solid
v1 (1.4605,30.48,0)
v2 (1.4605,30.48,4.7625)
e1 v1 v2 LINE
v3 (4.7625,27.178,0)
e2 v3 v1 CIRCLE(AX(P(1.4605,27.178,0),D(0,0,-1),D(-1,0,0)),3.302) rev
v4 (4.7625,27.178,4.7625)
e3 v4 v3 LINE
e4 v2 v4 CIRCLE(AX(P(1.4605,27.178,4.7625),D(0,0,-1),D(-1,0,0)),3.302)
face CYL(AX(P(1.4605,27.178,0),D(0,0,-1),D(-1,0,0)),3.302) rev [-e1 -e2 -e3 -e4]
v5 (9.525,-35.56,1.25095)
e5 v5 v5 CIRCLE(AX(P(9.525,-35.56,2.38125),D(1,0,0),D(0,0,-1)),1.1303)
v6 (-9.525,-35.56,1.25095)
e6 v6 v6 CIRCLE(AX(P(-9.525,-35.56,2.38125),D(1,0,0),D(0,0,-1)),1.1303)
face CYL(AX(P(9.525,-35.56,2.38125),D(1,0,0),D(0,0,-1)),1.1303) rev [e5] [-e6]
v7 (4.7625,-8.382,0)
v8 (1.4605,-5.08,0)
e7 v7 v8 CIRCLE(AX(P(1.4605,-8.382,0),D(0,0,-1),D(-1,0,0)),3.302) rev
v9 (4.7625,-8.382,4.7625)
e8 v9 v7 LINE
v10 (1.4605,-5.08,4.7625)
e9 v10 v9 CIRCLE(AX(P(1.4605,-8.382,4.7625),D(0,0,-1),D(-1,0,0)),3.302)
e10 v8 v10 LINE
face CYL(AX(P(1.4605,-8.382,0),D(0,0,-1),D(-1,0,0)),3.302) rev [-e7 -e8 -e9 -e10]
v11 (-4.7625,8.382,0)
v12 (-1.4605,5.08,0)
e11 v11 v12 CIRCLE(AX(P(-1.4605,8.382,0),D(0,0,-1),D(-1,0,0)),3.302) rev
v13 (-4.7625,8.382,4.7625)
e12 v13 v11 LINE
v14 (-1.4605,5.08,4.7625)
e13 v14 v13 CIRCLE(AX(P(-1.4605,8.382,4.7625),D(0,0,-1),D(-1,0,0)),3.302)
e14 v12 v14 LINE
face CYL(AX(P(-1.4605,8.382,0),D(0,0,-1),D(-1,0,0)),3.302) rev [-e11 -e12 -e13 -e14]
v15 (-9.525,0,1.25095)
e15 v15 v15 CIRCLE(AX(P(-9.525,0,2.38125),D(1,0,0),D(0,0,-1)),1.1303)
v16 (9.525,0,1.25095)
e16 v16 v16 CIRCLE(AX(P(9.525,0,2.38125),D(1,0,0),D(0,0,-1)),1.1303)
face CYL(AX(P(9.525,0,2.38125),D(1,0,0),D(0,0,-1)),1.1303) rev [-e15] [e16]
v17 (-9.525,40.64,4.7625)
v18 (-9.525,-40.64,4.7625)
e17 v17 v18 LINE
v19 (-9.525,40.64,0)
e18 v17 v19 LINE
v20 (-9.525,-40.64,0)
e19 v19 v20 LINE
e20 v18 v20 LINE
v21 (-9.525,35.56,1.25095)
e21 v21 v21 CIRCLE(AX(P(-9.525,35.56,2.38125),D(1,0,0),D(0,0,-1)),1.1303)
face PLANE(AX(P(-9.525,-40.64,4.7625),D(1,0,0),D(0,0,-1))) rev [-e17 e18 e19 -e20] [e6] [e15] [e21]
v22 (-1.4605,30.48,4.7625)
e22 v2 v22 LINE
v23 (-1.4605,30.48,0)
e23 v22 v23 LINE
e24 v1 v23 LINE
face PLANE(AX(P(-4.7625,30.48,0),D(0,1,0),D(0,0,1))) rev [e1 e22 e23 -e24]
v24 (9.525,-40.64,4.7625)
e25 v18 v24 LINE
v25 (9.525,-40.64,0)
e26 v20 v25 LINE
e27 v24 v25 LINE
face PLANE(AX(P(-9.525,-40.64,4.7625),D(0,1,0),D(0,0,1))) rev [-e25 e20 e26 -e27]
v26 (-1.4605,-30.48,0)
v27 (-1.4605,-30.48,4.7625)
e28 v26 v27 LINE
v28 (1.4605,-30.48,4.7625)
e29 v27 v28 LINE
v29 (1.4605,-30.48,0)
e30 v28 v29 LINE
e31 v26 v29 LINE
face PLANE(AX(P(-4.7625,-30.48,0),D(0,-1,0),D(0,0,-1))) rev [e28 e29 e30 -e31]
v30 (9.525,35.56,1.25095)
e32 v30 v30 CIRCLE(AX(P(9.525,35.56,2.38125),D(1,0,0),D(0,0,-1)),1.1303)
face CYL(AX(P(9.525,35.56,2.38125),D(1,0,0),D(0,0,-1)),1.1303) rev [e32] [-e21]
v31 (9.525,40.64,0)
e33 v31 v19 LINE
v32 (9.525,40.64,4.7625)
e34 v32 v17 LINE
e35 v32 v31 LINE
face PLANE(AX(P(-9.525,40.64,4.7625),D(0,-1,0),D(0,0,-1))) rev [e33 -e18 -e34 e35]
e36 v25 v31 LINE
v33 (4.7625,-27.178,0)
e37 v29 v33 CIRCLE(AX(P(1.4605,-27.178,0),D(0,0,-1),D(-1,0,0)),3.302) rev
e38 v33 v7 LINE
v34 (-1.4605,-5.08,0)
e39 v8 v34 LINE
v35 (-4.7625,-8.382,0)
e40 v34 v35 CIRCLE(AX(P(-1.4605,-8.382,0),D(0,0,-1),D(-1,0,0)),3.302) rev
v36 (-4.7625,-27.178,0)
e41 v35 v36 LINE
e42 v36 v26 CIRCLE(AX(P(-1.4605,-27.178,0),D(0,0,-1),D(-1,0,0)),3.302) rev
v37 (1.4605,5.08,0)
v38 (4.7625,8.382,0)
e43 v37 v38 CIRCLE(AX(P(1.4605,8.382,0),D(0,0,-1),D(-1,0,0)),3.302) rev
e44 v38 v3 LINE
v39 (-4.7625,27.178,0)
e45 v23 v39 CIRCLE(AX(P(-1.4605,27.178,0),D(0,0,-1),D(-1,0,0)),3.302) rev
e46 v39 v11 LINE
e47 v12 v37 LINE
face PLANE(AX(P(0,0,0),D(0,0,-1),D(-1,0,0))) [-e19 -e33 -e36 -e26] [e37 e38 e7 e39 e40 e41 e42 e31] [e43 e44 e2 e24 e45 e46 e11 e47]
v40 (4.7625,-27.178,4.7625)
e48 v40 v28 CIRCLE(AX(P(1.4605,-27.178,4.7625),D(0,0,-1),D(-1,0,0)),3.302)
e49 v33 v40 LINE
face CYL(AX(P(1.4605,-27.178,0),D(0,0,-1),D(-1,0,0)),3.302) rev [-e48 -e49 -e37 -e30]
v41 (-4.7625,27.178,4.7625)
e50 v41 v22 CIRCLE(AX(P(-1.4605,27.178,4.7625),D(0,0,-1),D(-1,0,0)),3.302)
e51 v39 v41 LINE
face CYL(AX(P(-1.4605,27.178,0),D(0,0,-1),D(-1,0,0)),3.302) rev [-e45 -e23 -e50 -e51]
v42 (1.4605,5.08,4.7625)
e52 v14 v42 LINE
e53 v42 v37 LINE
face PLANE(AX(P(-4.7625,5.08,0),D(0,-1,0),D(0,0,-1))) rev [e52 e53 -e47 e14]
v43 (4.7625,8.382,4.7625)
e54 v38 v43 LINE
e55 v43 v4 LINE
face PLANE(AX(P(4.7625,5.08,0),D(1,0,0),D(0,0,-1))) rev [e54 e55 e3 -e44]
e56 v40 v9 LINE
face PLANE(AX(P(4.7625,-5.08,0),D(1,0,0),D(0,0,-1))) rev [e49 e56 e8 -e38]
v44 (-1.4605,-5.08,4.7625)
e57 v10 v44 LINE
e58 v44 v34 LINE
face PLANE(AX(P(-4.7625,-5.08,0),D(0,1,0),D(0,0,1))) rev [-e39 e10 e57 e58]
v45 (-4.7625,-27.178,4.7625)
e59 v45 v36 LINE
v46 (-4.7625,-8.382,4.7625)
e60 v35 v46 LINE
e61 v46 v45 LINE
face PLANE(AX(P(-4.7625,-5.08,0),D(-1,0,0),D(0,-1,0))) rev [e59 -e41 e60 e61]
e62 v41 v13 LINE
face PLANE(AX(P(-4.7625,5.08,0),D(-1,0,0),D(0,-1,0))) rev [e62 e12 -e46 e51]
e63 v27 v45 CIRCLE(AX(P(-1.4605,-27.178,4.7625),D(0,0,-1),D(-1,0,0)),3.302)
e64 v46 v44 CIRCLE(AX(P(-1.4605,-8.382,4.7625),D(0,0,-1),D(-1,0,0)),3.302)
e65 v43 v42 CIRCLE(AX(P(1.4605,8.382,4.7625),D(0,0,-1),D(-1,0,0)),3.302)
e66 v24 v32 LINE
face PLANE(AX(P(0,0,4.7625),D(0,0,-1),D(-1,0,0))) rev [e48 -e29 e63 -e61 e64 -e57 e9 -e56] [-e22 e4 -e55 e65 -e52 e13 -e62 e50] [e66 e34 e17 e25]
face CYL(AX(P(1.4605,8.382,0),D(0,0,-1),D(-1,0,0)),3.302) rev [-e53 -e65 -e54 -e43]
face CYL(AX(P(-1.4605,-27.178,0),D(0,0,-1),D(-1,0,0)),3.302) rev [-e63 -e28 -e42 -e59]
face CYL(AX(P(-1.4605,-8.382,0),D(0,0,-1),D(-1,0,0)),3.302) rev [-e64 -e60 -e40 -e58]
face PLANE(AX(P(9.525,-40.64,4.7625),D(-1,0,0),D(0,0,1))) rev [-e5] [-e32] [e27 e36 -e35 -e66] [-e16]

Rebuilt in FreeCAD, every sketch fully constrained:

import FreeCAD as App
import Part
import Sketcher
Q = App.Units.Quantity


def edges_at(feature, points):
    """Names of the edges that pass closest to the given points."""
    edges = feature.Shape.Edges
    near = lambda p: min(range(len(edges)), key=lambda i: edges[i].distToShape(Part.Vertex(*p))[0])
    return sorted({f"Edge{near(p) + 1}" for p in points})


def add_polygon(sketch, points):
    """Adds a closed chain of lines whose ends are joined by coincident constraints."""
    first, n = sketch.GeometryCount, len(points)
    for a, b in zip(points, points[1:] + points[:1]):
        sketch.addGeometry(Part.LineSegment(App.Vector(*a, 0), App.Vector(*b, 0)), False)
    for i in range(n):
        sketch.addConstraint(Sketcher.Constraint("Coincident", first + i, 2, first + (i + 1) % n, 1))

doc = App.newDocument("Part")
params = doc.addObject("Spreadsheet::Sheet", "Params")
for row, (alias, value) in enumerate([
    ("sketch1_height", "3.2 in"),
    ("sketch1_width", "0.75 in"),
    ("pad1_length", "0.1875 in"),
    ("sketch2_height", "1 in"),
    ("sketch2_width", "0.375 in"),
    ("fillet_radius", "0.13 in"),
    ("sketch3_diameter", "0.089 in"),
    ("hole_diameter", "0.089 in"),
], start=1):
    params.set(f"A{row}", alias)
    params.set(f"B{row}", "=" + value)
    params.setAlias(f"B{row}", alias)

body = doc.addObject("PartDesign::Body", "Body")

# Sketch on XY plane
sketch1 = body.newObject("Sketcher::SketchObject", "Sketch")
sketch1.AttachmentSupport = (doc.getObject("XY_Plane"), [""])
sketch1.MapMode = "FlatFace"
add_polygon(sketch1, [(-10, 41), (-10, -41), (10, -41), (10, 41)])  # lines 0-3
sketch1.addConstraint([
    Sketcher.Constraint("Vertical", 0),
    Sketcher.Constraint("Horizontal", 1),
    Sketcher.Constraint("Vertical", 2),
    Sketcher.Constraint("Horizontal", 3),
    Sketcher.Constraint("Symmetric", 0, 2, 2, 2, -1, 1),
    Sketcher.Constraint("DistanceY", 0, 2, 0, 1, Q("3.2 in")),
    Sketcher.Constraint("DistanceX", 1, 1, 1, 2, Q("0.75 in")),
])
sketch1.setExpression("Constraints[9]", "Params.sketch1_height")
sketch1.setExpression("Constraints[10]", "Params.sketch1_width")
pad1 = body.newObject("PartDesign::Pad", "Pad")
pad1.Profile = sketch1
pad1.setExpression("Length", "Params.pad1_length")

# Sketch on XY plane
sketch2 = body.newObject("Sketcher::SketchObject", "Sketch001")
sketch2.AttachmentSupport = (doc.getObject("XY_Plane"), [""])
sketch2.MapMode = "FlatFace"
sketch2.AttachmentOffset = App.Placement(App.Vector(0, 0, 0.1875 * 25.4), App.Rotation())
add_polygon(sketch2, [(-5, 30), (-5, 5), (5, 5), (5, 30)])  # lines 0-3
add_polygon(sketch2, [(-5, -5), (-5, -30), (5, -30), (5, -5)])  # lines 4-7
sketch2.addConstraint([
    Sketcher.Constraint("Vertical", 0),
    Sketcher.Constraint("Horizontal", 1),
    Sketcher.Constraint("Vertical", 2),
    Sketcher.Constraint("Horizontal", 3),
    Sketcher.Constraint("Vertical", 4),
    Sketcher.Constraint("Horizontal", 5),
    Sketcher.Constraint("Vertical", 6),
    Sketcher.Constraint("Horizontal", 7),
    Sketcher.Constraint("Symmetric", 2, 2, 4, 2, -1, 1),
    Sketcher.Constraint("Symmetric", 0, 2, 6, 2, -1, 1),
    Sketcher.Constraint("Vertical", 3, 2, 4, 2),
    Sketcher.Constraint("DistanceY", 0, 2, 0, 1, Q("1 in")),
    Sketcher.Constraint("DistanceY", -1, 1, 0, 2, Q("0.2 in")),
    Sketcher.Constraint("DistanceX", 1, 1, 1, 2, Q("0.375 in")),
])
sketch2.setExpression("Constraints[19]", "Params.sketch2_height")
sketch2.setExpression("Constraints[21]", "Params.sketch2_width")
pocket1 = body.newObject("PartDesign::Pocket", "Pocket")
pocket1.Profile = sketch2
pocket1.Type = "ThroughAll"
doc.recompute()

fillet = body.newObject("PartDesign::Fillet", "Fillet")
fillet.Base = (pocket1, edges_at(pocket1, [
    (4.763, 30.48, 2.381),
    (4.763, 5.08, 2.381),
    (-4.763, 5.08, 2.381),
    (-4.763, 30.48, 2.381),
    (-4.763, -30.48, 2.381),
    (-4.763, -5.08, 2.381),
    (4.763, -5.08, 2.381),
    (4.763, -30.48, 2.381),
]))
fillet.setExpression("Radius", "Params.fillet_radius")

# Sketch on YZ plane
sketch3 = body.newObject("Sketcher::SketchObject", "Sketch002")
sketch3.AttachmentSupport = (doc.getObject("YZ_Plane"), [""])
sketch3.MapMode = "FlatFace"
sketch3.AttachmentOffset = App.Placement(App.Vector(0, 0, 0.375 * 25.4), App.Rotation())
sketch3.addGeometry([
    Part.Circle(App.Vector(35.6, 2.4, 0), App.Vector(0, 0, 1), 1.1),
    Part.Circle(App.Vector(0, 2.4, 0), App.Vector(0, 0, 1), 1.1),
    Part.Circle(App.Vector(-35.6, 2.4, 0), App.Vector(0, 0, 1), 1.1),
], False)
sketch3.addConstraint([
    Sketcher.Constraint("Equal", 0, 1),
    Sketcher.Constraint("Equal", 1, 2),
    Sketcher.Constraint("Symmetric", 0, 3, 2, 3, -2),
    Sketcher.Constraint("PointOnObject", 1, 3, -2),
    Sketcher.Constraint("Horizontal", 0, 3, 1, 3),
    Sketcher.Constraint("Diameter", 0, Q("0.089 in")),
    Sketcher.Constraint("DistanceX", -1, 1, 0, 3, Q("1.4 in")),
    Sketcher.Constraint("DistanceY", -1, 1, 0, 3, Q("0.09375 in")),
])
sketch3.setExpression("Constraints[5]", "Params.sketch3_diameter")
doc.recompute()
hole = body.newObject("PartDesign::Hole", "Hole")
hole.Profile = sketch3
hole.ThreadType = "None"
hole.setExpression("Diameter", "Params.hole_diameter")
hole.DepthType = "ThroughAll"

doc.recompute()
